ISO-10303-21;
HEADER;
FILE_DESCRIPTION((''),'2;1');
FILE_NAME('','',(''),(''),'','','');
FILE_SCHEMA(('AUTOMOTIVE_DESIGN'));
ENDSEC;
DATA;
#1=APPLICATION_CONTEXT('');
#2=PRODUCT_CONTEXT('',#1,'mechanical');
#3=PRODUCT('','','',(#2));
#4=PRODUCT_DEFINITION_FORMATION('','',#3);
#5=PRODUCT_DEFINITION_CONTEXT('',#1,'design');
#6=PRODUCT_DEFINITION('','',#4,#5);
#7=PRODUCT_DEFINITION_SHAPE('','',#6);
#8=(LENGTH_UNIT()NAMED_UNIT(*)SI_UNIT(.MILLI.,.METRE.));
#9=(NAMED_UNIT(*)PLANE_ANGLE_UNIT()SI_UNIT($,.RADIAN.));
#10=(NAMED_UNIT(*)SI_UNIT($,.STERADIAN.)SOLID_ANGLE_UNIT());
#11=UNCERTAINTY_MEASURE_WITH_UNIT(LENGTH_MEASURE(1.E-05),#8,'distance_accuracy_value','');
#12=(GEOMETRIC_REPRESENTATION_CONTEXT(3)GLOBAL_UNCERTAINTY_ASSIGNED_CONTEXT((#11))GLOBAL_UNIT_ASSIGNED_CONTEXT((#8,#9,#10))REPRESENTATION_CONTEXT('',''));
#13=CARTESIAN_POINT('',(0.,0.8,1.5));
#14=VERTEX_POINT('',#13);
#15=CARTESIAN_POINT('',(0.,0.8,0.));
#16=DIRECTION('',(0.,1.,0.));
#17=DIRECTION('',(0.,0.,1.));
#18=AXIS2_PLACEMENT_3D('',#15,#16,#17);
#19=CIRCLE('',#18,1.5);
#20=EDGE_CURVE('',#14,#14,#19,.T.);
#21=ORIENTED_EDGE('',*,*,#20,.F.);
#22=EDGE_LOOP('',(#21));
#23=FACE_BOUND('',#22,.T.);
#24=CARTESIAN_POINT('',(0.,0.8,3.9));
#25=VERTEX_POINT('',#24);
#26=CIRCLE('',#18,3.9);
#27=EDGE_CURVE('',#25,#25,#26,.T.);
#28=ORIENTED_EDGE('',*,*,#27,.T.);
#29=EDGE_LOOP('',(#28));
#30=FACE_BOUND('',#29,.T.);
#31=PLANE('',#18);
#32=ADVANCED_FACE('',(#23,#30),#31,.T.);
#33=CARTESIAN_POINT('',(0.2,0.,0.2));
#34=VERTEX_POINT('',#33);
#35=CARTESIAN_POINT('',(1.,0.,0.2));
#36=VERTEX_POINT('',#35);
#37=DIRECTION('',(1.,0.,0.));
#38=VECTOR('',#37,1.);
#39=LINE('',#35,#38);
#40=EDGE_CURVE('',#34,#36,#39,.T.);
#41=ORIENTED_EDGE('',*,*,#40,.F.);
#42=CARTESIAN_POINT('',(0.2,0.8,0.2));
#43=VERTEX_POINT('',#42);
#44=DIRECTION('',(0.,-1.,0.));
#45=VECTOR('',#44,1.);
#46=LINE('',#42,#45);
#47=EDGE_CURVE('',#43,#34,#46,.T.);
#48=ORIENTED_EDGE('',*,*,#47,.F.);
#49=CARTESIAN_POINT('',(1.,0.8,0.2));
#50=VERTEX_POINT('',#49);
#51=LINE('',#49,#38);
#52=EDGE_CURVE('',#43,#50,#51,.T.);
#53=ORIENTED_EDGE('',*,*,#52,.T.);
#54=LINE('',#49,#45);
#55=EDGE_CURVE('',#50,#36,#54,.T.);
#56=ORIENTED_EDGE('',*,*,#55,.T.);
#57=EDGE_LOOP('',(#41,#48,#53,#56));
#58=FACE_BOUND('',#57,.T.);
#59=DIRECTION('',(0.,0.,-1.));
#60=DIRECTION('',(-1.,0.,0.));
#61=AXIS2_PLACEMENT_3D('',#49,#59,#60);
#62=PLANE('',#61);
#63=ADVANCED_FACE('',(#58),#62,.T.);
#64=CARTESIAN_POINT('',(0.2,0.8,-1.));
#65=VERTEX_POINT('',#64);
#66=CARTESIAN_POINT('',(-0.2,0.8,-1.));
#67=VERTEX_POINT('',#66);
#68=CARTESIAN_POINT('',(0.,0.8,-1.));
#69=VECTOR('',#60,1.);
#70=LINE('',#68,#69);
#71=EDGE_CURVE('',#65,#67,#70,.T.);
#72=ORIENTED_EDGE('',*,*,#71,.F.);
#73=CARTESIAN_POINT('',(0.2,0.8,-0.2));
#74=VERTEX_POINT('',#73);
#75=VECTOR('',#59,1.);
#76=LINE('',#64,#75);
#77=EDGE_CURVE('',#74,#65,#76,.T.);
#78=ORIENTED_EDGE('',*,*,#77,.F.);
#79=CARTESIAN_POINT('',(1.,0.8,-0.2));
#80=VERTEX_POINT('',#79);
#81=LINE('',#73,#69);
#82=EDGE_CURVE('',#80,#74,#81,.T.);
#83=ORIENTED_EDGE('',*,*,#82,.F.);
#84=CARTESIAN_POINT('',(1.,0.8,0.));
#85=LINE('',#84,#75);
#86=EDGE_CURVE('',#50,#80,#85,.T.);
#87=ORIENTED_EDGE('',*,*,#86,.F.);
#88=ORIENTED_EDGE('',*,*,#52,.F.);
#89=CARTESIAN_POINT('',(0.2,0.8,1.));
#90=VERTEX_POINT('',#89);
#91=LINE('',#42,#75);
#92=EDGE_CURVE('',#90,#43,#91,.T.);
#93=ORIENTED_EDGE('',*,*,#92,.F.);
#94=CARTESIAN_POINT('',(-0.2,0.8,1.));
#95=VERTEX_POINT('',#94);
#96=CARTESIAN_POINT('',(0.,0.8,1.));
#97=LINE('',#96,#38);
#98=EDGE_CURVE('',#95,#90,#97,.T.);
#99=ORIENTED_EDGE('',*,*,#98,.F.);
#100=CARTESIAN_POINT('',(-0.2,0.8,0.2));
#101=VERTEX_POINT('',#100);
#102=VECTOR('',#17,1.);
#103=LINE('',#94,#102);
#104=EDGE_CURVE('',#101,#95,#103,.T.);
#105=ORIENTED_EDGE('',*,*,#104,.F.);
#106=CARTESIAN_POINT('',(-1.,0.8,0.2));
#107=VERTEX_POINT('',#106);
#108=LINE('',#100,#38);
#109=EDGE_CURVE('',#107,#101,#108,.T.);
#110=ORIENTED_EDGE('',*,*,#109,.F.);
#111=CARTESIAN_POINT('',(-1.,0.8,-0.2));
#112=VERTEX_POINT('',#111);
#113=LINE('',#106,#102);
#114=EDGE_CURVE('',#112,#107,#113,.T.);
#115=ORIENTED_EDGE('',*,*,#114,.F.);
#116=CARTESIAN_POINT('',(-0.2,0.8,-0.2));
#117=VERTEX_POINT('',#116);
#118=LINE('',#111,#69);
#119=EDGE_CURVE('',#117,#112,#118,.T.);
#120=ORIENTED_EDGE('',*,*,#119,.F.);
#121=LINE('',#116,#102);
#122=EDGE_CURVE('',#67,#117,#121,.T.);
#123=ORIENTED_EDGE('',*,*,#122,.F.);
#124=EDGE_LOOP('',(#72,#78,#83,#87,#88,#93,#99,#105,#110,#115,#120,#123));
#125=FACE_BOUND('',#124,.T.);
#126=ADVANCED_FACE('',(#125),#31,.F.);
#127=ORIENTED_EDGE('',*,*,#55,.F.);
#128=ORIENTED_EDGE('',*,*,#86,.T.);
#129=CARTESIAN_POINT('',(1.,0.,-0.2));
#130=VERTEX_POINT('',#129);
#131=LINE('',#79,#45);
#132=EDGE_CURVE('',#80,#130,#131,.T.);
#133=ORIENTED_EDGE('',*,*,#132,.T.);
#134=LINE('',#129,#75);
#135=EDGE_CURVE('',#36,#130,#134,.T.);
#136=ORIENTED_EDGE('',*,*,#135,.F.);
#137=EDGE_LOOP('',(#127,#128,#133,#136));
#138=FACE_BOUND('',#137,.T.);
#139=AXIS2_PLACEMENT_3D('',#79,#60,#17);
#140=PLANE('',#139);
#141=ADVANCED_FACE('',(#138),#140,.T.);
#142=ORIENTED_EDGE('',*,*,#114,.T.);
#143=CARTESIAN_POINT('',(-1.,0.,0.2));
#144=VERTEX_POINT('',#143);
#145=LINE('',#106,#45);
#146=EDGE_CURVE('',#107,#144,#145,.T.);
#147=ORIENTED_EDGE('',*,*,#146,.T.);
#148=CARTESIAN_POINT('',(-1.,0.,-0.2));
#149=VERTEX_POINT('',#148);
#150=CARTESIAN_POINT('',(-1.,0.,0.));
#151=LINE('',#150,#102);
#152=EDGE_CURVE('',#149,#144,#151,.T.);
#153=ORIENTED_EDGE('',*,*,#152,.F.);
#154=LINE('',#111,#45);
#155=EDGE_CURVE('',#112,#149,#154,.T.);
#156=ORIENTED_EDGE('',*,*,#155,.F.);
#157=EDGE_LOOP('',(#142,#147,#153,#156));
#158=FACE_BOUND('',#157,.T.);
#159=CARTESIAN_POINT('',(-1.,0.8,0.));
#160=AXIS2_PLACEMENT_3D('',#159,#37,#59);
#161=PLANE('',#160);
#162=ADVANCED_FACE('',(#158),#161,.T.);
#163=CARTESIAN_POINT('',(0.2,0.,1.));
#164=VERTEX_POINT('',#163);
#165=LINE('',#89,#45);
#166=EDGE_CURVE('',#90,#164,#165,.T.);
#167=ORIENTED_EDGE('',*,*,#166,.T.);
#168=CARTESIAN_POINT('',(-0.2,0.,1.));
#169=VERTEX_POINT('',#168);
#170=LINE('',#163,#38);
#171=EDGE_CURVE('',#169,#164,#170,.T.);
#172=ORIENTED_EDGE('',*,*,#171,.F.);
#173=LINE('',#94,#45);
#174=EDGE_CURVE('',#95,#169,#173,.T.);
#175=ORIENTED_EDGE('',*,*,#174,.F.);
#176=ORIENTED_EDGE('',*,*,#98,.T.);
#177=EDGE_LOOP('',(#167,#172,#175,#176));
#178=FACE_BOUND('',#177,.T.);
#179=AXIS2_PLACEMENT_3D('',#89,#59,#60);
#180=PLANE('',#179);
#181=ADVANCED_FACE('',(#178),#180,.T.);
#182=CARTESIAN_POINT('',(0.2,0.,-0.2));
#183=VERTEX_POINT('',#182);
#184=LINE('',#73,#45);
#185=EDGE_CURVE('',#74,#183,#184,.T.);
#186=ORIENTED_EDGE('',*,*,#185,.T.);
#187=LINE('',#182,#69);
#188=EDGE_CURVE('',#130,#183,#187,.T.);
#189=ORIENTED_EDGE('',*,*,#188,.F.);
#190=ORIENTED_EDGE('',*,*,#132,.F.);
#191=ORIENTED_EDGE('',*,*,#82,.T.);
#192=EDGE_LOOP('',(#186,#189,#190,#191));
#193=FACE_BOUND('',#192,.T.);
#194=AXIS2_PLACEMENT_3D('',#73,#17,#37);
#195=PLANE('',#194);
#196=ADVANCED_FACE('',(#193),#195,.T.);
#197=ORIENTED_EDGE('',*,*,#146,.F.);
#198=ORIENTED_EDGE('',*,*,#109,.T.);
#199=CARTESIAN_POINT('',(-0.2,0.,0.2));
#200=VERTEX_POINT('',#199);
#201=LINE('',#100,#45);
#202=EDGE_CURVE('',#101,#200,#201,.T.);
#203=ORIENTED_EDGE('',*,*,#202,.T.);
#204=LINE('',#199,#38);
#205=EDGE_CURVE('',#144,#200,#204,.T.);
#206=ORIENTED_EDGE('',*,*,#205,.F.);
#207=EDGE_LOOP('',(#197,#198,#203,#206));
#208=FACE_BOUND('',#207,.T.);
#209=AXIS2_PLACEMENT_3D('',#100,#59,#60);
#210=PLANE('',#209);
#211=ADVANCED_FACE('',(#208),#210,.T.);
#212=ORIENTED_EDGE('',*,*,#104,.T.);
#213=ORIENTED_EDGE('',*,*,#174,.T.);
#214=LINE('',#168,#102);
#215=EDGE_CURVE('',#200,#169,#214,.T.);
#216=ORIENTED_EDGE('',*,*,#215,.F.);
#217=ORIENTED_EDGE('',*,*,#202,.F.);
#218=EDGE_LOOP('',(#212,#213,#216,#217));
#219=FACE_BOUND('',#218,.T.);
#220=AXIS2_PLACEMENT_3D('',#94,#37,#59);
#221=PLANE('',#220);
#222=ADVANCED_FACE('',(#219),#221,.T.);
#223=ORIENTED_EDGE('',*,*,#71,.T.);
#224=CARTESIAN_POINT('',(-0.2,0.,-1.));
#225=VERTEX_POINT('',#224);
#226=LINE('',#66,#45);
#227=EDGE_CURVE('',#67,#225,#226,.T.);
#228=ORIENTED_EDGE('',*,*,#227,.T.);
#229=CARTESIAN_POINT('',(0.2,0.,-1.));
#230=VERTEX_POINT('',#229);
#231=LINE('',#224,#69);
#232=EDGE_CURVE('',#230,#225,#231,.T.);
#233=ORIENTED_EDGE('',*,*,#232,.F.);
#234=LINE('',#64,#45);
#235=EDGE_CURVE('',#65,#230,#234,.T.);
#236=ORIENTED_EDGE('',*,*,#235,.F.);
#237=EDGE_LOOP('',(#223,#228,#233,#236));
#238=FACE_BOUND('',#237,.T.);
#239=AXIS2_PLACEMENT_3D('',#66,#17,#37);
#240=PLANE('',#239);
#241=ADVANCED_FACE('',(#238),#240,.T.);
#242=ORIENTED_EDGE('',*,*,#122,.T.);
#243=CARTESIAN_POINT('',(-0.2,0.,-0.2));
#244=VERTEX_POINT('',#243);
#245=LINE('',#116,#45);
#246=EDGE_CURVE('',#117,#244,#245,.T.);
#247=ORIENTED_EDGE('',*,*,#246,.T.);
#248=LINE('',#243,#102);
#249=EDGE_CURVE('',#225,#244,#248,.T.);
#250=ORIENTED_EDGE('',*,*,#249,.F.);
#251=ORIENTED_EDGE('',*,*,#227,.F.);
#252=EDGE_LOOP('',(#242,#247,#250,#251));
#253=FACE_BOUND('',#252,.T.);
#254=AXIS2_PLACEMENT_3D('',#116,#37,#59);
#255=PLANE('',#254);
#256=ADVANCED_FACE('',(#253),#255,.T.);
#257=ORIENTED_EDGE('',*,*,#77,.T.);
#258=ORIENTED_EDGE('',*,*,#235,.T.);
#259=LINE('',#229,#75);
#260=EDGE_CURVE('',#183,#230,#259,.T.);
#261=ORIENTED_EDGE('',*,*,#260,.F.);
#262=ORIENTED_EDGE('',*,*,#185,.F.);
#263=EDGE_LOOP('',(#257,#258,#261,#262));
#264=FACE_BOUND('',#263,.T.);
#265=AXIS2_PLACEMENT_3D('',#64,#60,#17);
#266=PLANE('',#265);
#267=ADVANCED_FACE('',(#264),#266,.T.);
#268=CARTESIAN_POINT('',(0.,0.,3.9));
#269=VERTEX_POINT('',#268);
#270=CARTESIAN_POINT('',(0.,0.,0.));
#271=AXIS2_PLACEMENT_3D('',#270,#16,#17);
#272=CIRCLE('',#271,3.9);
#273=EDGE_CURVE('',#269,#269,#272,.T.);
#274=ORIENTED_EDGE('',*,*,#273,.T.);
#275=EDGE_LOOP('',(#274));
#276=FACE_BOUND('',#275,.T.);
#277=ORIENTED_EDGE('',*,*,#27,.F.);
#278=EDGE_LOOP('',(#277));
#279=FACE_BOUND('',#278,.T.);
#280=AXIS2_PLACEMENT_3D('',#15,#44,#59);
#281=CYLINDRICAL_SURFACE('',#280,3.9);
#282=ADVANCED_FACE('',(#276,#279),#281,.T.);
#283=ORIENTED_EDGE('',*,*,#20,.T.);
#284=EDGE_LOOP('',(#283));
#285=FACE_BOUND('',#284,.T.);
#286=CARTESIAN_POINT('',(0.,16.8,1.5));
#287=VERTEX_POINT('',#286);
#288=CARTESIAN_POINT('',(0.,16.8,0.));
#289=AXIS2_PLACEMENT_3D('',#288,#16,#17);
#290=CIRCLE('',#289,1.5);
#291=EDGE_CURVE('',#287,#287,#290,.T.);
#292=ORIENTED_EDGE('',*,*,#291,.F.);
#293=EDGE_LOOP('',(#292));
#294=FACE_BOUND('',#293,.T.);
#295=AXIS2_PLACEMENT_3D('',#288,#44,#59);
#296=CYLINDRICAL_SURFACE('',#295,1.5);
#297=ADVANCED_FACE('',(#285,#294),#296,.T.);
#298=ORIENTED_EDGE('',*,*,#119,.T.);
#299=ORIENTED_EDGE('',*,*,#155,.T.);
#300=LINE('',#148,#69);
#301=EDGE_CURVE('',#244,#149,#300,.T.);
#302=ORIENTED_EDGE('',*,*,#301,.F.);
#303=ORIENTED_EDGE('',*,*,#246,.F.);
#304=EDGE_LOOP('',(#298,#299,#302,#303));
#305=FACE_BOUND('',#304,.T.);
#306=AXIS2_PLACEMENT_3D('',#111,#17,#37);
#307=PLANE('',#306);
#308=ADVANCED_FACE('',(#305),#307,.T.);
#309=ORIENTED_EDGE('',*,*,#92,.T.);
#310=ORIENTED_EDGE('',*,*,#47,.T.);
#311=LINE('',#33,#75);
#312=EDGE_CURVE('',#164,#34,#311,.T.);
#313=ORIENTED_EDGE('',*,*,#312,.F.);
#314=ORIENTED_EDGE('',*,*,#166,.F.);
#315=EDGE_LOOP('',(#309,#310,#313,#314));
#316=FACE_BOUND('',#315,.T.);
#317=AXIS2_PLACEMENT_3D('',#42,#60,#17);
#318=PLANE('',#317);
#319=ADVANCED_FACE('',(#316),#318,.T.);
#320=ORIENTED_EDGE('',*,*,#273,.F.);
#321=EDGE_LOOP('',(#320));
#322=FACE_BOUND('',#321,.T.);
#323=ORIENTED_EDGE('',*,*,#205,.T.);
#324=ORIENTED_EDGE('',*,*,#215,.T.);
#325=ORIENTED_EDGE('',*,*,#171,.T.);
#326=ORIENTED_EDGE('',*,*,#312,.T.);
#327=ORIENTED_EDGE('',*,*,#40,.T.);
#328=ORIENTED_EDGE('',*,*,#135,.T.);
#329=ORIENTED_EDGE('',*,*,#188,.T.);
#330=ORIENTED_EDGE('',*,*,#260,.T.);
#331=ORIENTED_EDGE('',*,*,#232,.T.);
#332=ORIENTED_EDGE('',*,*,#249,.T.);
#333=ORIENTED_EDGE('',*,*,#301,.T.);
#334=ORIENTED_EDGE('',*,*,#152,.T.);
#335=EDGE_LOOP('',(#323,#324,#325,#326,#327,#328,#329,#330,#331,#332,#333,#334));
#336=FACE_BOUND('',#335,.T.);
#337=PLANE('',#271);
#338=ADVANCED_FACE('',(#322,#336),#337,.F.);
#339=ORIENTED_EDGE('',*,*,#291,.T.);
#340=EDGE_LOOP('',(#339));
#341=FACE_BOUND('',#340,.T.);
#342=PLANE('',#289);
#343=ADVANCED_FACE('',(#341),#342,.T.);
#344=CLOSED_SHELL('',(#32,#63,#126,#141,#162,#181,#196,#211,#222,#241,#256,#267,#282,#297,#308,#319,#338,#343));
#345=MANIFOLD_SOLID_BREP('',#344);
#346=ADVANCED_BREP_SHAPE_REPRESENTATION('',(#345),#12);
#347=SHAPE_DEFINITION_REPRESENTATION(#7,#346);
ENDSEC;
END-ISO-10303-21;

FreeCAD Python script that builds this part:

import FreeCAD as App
import Part
import Sketcher
from FreeCAD import Vector
Q = App.Units.Quantity


def add_polygon(sketch, points):
    """Adds a closed chain of lines whose ends are joined by coincident constraints."""
    first, n = sketch.GeometryCount, len(points)
    for a, b in zip(points, points[1:] + points[:1]):
        sketch.addGeometry(Part.LineSegment(App.Vector(*a, 0), App.Vector(*b, 0)), False)
    for i in range(n):
        sketch.addConstraint(Sketcher.Constraint("Coincident", first + i, 2, first + (i + 1) % n, 1))

doc = App.newDocument("Part")
params = doc.addObject("Spreadsheet::Sheet", "Params")
for row, (alias, value) in enumerate([
    ("sketch1_diameter", "7.8 mm"),
    ("sketch1_width", "0.8 mm"),
    ("sketch1_width2", "0.4 mm"),
    ("pad1_length", "0.8 mm"),
    ("sketch2_diameter", "3 mm"),
    ("pad2_length", "16 mm"),
], start=1):
    params.set(f"A{row}", alias)
    params.set(f"B{row}", "=" + value)
    params.setAlias(f"B{row}", alias)

body = doc.addObject("PartDesign::Body", "Body")

# Sketch on XZ plane
sketch1 = body.newObject("Sketcher::SketchObject", "Sketch")
sketch1.AttachmentSupport = (doc.getObject("XZ_Plane"), [""])
sketch1.MapMode = "FlatFace"
sketch1.addGeometry(Part.Circle(Vector(0, 0, 0), Vector(0, 0, 1), 3.9), False)  # 0
add_polygon(sketch1, [(-1, 0.2), (-1, -0.2), (-0.2, -0.2), (-0.2, -1), (0.2, -1), (0.2, -0.2), (1, -0.2), (1, 0.2), (0.2, 0.2), (0.2, 1), (-0.2, 1), (-0.2, 0.2)])  # lines 1-12
sketch1.addConstraint([
    Sketcher.Constraint("Vertical", 1),
    Sketcher.Constraint("Horizontal", 2),
    Sketcher.Constraint("Vertical", 3),
    Sketcher.Constraint("Horizontal", 4),
    Sketcher.Constraint("Vertical", 5),
    Sketcher.Constraint("Horizontal", 6),
    Sketcher.Constraint("Vertical", 7),
    Sketcher.Constraint("Horizontal", 8),
    Sketcher.Constraint("Vertical", 9),
    Sketcher.Constraint("Horizontal", 10),
    Sketcher.Constraint("Vertical", 11),
    Sketcher.Constraint("Horizontal", 12),
    Sketcher.Constraint("Coincident", 0, 3, -1, 1),
    Sketcher.Constraint("Symmetric", 1, 2, 7, 2, -1, 1),
    Sketcher.Constraint("Symmetric", 3, 2, 9, 2, -1, 1),
    Sketcher.Constraint("Symmetric", 5, 2, 11, 2, -1, 1),
    Sketcher.Constraint("Symmetric", 2, 2, 5, 2, -2),
    Sketcher.Constraint("Equal", 10, 1),
    Sketcher.Constraint("Equal", 12, 3),
    Sketcher.Constraint("Diameter", 0, Q("7.8 mm")),
    Sketcher.Constraint("DistanceX", 2, 1, 2, 2, Q("0.8 mm")),
    Sketcher.Constraint("DistanceX", 4, 1, 4, 2, Q("0.4 mm")),
])
sketch1.setExpression("Constraints[31]", "Params.sketch1_diameter")
sketch1.setExpression("Constraints[32]", "Params.sketch1_width")
sketch1.setExpression("Constraints[33]", "Params.sketch1_width2")
pad1 = body.newObject("PartDesign::Pad", "Pad")
pad1.Profile = sketch1
pad1.setExpression("Length", "Params.pad1_length")
pad1.Reversed = True

# Sketch on XZ plane
sketch2 = body.newObject("Sketcher::SketchObject", "Sketch001")
sketch2.AttachmentSupport = (doc.getObject("XZ_Plane"), [""])
sketch2.MapMode = "FlatFace"
sketch2.AttachmentOffset = App.Placement(Vector(0, 0, -0.8), App.Rotation())
sketch2.addGeometry(Part.Circle(Vector(0, 0, 0), Vector(0, 0, 1), 1.5), False)
sketch2.addConstraint([
    Sketcher.Constraint("Coincident", 0, 3, -1, 1),
    Sketcher.Constraint("Diameter", 0, Q("3 mm")),
])
sketch2.setExpression("Constraints[1]", "Params.sketch2_diameter")
pad2 = body.newObject("PartDesign::Pad", "Pad001")
pad2.Profile = sketch2
pad2.setExpression("Length", "Params.pad2_length")
pad2.Reversed = True

doc.recompute()
